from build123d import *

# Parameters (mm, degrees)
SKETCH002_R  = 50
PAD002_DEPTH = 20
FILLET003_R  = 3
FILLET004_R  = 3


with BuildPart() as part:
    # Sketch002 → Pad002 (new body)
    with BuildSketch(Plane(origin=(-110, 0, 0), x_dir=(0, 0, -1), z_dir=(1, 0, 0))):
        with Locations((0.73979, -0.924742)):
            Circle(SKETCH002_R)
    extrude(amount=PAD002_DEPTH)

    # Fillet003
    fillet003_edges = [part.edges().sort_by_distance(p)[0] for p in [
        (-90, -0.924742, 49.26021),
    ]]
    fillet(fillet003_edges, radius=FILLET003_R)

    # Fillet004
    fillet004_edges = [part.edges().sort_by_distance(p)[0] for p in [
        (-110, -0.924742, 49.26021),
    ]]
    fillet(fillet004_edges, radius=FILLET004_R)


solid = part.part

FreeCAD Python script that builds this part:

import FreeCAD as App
import Part
import Sketcher

V = App.Vector


def edges_at(feature, points):
    """Names of the edges that pass closest to the given points."""
    edges = feature.Shape.Edges
    near = lambda p: min(range(len(edges)), key=lambda i: edges[i].distToShape(Part.Vertex(*p))[0])
    return sorted({f"Edge{near(p) + 1}" for p in points})

doc = App.newDocument("Part")
body = doc.addObject("PartDesign::Body", "Body")

# Sketch on YZ plane
sketch1 = body.newObject("Sketcher::SketchObject", "Sketch")
sketch1.AttachmentSupport = (doc.getObject("YZ_Plane"), [""])
sketch1.MapMode = "FlatFace"
sketch1.AttachmentOffset = App.Placement(V(0, 0, -110), App.Rotation())
sketch1.addGeometry(Part.Circle(V(-0.924742, -0.73979, 0), V(0, 0, 1), 50), False)
sketch1.addConstraint(Sketcher.Constraint("Diameter", 0, 100.0))
sketch1.addConstraint(Sketcher.Constraint("DistanceX", 0, 3, -1, 1, 0.924742))
sketch1.addConstraint(Sketcher.Constraint("DistanceY", 0, 3, -1, 1, 0.73979))
pad1 = body.newObject("PartDesign::Pad", "Pad")
pad1.Profile = sketch1
pad1.Length = 20
doc.recompute()

fillet = body.newObject("PartDesign::Fillet", "Fillet")
fillet.Base = (pad1, edges_at(pad1, [(-90, -0.925, 49.26)]))
fillet.Radius = 3
doc.recompute()

fillet2 = body.newObject("PartDesign::Fillet", "Fillet001")
fillet2.Base = (fillet, edges_at(fillet, [(-110, -0.925, 49.26)]))
fillet2.Radius = 3

doc.recompute()
